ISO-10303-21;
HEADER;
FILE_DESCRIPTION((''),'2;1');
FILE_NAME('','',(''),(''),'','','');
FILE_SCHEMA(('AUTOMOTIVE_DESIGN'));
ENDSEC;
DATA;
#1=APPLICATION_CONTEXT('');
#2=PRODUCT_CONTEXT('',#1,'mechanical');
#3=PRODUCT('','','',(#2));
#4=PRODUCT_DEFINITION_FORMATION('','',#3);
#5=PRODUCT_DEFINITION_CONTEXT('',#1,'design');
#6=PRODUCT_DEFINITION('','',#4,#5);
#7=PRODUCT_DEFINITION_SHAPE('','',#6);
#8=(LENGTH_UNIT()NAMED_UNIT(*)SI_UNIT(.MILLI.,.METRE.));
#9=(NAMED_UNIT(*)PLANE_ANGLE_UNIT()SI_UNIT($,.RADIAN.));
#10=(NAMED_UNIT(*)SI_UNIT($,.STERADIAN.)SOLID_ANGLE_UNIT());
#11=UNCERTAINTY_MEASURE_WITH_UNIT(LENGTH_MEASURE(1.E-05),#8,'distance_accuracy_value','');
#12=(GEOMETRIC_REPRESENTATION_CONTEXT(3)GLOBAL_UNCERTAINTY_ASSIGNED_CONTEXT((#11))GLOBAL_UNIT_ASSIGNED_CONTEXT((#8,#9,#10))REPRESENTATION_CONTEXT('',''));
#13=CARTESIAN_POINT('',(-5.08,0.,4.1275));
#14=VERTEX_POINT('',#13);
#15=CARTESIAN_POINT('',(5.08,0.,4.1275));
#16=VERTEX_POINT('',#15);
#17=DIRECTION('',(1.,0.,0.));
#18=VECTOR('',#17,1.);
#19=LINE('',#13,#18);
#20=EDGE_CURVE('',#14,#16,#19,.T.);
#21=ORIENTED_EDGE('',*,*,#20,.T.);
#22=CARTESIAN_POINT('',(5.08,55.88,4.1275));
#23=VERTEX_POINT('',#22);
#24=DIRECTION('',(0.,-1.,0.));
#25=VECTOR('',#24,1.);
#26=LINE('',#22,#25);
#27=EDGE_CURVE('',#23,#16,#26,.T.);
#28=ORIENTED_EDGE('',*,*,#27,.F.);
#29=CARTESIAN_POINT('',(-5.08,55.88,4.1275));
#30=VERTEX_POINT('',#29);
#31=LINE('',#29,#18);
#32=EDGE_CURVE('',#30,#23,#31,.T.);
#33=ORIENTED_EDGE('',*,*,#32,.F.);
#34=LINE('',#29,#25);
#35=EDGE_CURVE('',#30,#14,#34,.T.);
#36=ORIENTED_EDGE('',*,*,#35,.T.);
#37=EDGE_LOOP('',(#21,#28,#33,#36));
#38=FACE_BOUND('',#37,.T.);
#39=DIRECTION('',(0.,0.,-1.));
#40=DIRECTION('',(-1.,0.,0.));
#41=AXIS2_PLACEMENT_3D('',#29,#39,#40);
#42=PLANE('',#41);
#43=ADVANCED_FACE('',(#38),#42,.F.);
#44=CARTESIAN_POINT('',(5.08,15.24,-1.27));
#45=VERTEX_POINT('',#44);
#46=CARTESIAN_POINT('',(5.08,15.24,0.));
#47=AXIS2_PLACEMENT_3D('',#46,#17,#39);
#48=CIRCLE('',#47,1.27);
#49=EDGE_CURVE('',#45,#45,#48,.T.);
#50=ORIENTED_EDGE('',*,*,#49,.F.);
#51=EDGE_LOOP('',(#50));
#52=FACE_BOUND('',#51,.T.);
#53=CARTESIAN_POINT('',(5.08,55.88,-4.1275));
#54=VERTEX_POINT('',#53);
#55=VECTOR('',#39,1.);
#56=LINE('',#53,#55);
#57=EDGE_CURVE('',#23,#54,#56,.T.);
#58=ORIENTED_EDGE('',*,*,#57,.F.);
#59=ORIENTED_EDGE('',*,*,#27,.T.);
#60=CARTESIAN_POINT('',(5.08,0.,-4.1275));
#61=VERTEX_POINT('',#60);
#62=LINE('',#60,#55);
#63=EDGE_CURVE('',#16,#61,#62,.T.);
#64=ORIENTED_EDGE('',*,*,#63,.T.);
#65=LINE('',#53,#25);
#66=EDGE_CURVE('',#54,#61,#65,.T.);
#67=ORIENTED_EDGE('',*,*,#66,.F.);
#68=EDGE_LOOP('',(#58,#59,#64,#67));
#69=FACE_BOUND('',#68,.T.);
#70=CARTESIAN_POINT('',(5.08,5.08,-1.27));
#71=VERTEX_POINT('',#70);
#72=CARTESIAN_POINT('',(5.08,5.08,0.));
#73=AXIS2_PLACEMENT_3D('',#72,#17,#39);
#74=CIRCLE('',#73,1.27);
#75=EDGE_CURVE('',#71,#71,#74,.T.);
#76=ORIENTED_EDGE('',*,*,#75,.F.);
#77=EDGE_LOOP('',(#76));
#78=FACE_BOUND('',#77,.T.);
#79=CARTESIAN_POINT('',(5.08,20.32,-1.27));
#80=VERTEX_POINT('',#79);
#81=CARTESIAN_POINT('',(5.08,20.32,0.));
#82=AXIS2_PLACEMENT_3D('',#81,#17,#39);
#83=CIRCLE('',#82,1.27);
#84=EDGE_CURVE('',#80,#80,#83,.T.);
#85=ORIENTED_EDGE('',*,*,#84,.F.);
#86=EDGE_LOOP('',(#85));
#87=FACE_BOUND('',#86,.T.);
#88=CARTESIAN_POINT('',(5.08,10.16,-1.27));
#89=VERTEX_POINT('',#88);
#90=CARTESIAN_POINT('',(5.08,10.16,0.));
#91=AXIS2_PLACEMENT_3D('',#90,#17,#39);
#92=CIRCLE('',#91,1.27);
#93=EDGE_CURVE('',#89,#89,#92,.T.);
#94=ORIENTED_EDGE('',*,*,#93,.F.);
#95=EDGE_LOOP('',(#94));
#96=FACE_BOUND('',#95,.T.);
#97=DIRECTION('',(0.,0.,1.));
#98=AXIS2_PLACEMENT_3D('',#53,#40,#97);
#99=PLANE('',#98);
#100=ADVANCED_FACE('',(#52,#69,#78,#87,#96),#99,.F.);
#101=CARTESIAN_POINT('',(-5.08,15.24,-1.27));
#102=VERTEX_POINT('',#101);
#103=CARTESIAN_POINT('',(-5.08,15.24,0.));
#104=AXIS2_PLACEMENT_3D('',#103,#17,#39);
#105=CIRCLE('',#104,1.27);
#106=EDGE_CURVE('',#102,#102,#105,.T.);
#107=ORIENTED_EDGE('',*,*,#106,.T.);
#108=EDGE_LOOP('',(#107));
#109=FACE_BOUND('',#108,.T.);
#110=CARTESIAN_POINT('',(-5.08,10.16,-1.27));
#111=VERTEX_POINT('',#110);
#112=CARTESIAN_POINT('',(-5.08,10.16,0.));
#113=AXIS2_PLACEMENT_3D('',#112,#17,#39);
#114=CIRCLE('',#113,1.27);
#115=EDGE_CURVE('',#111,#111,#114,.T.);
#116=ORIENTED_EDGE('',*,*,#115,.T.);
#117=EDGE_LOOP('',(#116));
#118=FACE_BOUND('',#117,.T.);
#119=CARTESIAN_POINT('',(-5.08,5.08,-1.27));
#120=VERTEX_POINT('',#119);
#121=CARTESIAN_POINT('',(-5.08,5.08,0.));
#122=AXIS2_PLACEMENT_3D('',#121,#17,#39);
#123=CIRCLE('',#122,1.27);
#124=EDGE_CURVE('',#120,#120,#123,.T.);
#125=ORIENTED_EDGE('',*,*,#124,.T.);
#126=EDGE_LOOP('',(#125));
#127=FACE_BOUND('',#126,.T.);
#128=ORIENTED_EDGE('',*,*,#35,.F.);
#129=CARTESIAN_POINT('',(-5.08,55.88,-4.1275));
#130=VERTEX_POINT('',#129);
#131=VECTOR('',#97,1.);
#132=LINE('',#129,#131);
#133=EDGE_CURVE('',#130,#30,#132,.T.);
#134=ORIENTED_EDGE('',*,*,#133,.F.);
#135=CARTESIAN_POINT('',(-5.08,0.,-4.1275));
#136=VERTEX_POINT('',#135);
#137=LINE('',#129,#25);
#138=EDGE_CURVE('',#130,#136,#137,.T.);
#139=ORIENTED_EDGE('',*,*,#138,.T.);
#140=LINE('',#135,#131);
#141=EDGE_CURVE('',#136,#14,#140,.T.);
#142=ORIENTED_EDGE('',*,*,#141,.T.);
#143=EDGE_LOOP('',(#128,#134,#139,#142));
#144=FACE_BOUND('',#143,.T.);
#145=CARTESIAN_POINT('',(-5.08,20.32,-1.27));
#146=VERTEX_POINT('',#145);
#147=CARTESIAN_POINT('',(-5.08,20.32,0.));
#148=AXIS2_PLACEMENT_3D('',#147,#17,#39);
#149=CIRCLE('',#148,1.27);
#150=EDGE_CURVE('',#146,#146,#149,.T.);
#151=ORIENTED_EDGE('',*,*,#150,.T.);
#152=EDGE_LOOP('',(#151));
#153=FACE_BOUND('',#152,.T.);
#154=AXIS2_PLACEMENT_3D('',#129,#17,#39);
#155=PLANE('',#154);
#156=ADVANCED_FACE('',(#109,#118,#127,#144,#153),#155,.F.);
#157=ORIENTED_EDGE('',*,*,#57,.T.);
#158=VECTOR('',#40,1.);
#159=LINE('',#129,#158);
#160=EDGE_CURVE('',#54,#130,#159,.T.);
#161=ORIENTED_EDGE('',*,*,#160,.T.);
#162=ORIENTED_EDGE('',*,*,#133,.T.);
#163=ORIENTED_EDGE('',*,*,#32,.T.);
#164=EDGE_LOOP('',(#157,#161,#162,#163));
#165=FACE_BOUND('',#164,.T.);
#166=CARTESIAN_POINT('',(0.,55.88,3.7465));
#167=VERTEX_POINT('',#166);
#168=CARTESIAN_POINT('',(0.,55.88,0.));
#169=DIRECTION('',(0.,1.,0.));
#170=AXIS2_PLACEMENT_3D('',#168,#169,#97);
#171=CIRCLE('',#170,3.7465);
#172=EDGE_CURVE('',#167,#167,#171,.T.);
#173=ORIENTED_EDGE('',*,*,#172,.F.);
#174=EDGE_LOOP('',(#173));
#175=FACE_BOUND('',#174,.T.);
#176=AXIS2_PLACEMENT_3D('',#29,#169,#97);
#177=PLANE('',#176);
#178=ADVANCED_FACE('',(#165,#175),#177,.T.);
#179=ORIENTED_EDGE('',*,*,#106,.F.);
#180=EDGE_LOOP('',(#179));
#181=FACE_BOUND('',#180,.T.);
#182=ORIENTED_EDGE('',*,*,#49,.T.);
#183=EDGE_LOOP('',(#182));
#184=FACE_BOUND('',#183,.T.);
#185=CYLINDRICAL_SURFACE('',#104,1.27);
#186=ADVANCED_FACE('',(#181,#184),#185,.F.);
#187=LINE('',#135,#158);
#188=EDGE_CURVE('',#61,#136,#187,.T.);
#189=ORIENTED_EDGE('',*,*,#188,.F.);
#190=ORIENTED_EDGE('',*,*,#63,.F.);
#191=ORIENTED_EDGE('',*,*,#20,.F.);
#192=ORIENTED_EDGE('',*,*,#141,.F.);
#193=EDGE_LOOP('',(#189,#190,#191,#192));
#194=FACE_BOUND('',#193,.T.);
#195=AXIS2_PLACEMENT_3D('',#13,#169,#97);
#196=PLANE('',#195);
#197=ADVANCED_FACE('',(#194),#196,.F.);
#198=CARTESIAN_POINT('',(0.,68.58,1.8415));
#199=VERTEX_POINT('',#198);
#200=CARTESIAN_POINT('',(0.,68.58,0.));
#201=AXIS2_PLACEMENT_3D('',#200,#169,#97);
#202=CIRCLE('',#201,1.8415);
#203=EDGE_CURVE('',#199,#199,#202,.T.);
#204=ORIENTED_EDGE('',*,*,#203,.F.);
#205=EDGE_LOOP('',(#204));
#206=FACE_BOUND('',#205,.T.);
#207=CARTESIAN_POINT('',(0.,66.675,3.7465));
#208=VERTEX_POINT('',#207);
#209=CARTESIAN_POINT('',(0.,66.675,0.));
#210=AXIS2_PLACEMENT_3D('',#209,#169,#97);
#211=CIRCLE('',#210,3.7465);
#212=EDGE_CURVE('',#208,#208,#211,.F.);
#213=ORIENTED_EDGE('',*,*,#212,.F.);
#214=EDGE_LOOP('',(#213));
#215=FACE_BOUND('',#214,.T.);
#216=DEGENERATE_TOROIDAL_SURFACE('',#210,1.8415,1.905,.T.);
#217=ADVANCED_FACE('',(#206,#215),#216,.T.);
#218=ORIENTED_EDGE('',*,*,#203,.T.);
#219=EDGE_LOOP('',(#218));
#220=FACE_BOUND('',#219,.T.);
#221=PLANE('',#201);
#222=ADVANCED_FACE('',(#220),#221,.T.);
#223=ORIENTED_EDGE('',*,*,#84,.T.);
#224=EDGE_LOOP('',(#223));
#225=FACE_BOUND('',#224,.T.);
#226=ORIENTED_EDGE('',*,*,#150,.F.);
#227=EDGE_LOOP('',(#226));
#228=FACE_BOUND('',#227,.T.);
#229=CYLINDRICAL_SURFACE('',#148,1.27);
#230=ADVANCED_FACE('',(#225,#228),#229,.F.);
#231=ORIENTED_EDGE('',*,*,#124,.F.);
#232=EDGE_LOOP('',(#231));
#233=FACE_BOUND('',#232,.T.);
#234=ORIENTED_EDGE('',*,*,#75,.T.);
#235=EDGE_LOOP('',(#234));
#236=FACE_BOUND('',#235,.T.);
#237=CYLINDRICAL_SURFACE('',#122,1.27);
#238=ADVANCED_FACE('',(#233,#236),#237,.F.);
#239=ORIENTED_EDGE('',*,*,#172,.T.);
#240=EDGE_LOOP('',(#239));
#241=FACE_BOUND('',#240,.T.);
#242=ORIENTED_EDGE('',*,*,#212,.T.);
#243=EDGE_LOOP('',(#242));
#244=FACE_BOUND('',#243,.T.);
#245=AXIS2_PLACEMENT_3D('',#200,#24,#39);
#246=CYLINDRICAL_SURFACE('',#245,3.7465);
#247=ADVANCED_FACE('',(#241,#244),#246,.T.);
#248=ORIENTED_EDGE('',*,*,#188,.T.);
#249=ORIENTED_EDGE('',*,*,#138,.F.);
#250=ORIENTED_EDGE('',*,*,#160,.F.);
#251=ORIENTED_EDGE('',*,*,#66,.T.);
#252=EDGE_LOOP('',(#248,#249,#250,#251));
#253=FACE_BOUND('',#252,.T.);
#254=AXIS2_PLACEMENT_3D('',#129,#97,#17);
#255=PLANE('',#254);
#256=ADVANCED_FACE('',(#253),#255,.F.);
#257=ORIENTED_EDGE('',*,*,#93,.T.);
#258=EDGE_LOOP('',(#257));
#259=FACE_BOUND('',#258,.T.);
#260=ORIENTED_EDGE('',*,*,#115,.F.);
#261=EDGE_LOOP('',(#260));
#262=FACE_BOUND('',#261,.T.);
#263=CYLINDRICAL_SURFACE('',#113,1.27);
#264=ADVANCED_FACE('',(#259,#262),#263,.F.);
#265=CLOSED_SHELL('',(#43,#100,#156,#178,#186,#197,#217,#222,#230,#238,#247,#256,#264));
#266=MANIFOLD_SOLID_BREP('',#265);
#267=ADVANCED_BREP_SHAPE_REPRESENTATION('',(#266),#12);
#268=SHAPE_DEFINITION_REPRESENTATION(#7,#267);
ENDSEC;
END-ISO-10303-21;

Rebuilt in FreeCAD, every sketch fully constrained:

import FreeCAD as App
import Part
import Sketcher
from FreeCAD import Vector
Q = App.Units.Quantity


def edges_at(feature, points):
    """Names of the edges that pass closest to the given points."""
    edges = feature.Shape.Edges
    near = lambda p: min(range(len(edges)), key=lambda i: edges[i].distToShape(Part.Vertex(*p))[0])
    return sorted({f"Edge{near(p) + 1}" for p in points})


def add_polygon(sketch, points):
    """Adds a closed chain of lines whose ends are joined by coincident constraints."""
    first, n = sketch.GeometryCount, len(points)
    for a, b in zip(points, points[1:] + points[:1]):
        sketch.addGeometry(Part.LineSegment(App.Vector(*a, 0), App.Vector(*b, 0)), False)
    for i in range(n):
        sketch.addConstraint(Sketcher.Constraint("Coincident", first + i, 2, first + (i + 1) % n, 1))

doc = App.newDocument("Part")
body = doc.addObject("PartDesign::Body", "Body")

# Sketch on XZ plane
sketch1 = doc.addObject("Sketcher::SketchObject", "Sketch")
body.addObject(sketch1)
sketch1.AttachmentSupport = (doc.XZ_Plane, [""])
sketch1.MapMode = "FlatFace"
add_polygon(sketch1, [(-5, -4), (-5, 4), (5, 4), (5, -4)])  # lines 0-3
sketch1.addConstraint(Sketcher.Constraint("Vertical", 0))
sketch1.addConstraint(Sketcher.Constraint("Horizontal", 1))
sketch1.addConstraint(Sketcher.Constraint("Vertical", 2))
sketch1.addConstraint(Sketcher.Constraint("Horizontal", 3))
sketch1.addConstraint(Sketcher.Constraint("Symmetric", 0, 2, 2, 2, -1, 1))
sketch1.addConstraint(Sketcher.Constraint("DistanceX", 1, 1, 1, 2, Q("0.4 in")))
sketch1.addConstraint(Sketcher.Constraint("DistanceY", 0, 1, 0, 2, Q("0.325 in")))
pad1 = doc.addObject("PartDesign::Pad", "Pad")
body.addObject(pad1)
pad1.Profile = sketch1
pad1.Length = Q("2.2 in")
pad1.Reversed = True

# Sketch on XZ plane
sketch2 = doc.addObject("Sketcher::SketchObject", "Sketch001")
body.addObject(sketch2)
sketch2.AttachmentSupport = (doc.XZ_Plane, [""])
sketch2.MapMode = "FlatFace"
sketch2.AttachmentOffset = App.Placement(Vector(0, 0, -2.2 * 25.4), App.Rotation())
sketch2.addGeometry(Part.Circle(Vector(0, 0, 0), Vector(0, 0, 1), 3.7), False)
sketch2.addConstraint(Sketcher.Constraint("Coincident", 0, 3, -1, 1))
sketch2.addConstraint(Sketcher.Constraint("Diameter", 0, Q("0.295 in")))
pad2 = doc.addObject("PartDesign::Pad", "Pad001")
body.addObject(pad2)
pad2.Profile = sketch2
pad2.Length = Q("0.5 in")
pad2.Reversed = True

# Sketch on YZ plane
sketch3 = doc.addObject("Sketcher::SketchObject", "Sketch002")
body.addObject(sketch3)
sketch3.AttachmentSupport = (doc.YZ_Plane, [""])
sketch3.MapMode = "FlatFace"
sketch3.AttachmentOffset = App.Placement(Vector(0, 0, 0.2 * 25.4), App.Rotation())
sketch3.addGeometry(Part.Circle(Vector(5.1, 0, 0), Vector(0, 0, 1), 1.3), False)
sketch3.addConstraint(Sketcher.Constraint("PointOnObject", 0, 3, -1))
sketch3.addConstraint(Sketcher.Constraint("Diameter", 0, Q("0.1 in")))
sketch3.addConstraint(Sketcher.Constraint("DistanceX", -1, 1, 0, 3, Q("0.2 in")))
pocket1 = doc.addObject("PartDesign::Pocket", "Pocket")
body.addObject(pocket1)
pocket1.Profile = sketch3
pocket1.Type = "ThroughAll"
doc.recompute()

linearpattern = doc.addObject("PartDesign::LinearPattern", "LinearPattern")
body.addObject(linearpattern)
linearpattern.Originals = [pocket1]
linearpattern.Direction = (doc.Y_Axis, [""])
linearpattern.Mode = "offset"
linearpattern.Offset = Q("0.2 in")
linearpattern.Occurrences = 4
body.Tip = linearpattern
doc.recompute()

fillet = doc.addObject("PartDesign::Fillet", "Fillet")
body.addObject(fillet)
fillet.Base = (linearpattern, edges_at(linearpattern, [(0, 68.58, -3.747)]))
fillet.Radius = Q("0.075 in")

doc.recompute()
